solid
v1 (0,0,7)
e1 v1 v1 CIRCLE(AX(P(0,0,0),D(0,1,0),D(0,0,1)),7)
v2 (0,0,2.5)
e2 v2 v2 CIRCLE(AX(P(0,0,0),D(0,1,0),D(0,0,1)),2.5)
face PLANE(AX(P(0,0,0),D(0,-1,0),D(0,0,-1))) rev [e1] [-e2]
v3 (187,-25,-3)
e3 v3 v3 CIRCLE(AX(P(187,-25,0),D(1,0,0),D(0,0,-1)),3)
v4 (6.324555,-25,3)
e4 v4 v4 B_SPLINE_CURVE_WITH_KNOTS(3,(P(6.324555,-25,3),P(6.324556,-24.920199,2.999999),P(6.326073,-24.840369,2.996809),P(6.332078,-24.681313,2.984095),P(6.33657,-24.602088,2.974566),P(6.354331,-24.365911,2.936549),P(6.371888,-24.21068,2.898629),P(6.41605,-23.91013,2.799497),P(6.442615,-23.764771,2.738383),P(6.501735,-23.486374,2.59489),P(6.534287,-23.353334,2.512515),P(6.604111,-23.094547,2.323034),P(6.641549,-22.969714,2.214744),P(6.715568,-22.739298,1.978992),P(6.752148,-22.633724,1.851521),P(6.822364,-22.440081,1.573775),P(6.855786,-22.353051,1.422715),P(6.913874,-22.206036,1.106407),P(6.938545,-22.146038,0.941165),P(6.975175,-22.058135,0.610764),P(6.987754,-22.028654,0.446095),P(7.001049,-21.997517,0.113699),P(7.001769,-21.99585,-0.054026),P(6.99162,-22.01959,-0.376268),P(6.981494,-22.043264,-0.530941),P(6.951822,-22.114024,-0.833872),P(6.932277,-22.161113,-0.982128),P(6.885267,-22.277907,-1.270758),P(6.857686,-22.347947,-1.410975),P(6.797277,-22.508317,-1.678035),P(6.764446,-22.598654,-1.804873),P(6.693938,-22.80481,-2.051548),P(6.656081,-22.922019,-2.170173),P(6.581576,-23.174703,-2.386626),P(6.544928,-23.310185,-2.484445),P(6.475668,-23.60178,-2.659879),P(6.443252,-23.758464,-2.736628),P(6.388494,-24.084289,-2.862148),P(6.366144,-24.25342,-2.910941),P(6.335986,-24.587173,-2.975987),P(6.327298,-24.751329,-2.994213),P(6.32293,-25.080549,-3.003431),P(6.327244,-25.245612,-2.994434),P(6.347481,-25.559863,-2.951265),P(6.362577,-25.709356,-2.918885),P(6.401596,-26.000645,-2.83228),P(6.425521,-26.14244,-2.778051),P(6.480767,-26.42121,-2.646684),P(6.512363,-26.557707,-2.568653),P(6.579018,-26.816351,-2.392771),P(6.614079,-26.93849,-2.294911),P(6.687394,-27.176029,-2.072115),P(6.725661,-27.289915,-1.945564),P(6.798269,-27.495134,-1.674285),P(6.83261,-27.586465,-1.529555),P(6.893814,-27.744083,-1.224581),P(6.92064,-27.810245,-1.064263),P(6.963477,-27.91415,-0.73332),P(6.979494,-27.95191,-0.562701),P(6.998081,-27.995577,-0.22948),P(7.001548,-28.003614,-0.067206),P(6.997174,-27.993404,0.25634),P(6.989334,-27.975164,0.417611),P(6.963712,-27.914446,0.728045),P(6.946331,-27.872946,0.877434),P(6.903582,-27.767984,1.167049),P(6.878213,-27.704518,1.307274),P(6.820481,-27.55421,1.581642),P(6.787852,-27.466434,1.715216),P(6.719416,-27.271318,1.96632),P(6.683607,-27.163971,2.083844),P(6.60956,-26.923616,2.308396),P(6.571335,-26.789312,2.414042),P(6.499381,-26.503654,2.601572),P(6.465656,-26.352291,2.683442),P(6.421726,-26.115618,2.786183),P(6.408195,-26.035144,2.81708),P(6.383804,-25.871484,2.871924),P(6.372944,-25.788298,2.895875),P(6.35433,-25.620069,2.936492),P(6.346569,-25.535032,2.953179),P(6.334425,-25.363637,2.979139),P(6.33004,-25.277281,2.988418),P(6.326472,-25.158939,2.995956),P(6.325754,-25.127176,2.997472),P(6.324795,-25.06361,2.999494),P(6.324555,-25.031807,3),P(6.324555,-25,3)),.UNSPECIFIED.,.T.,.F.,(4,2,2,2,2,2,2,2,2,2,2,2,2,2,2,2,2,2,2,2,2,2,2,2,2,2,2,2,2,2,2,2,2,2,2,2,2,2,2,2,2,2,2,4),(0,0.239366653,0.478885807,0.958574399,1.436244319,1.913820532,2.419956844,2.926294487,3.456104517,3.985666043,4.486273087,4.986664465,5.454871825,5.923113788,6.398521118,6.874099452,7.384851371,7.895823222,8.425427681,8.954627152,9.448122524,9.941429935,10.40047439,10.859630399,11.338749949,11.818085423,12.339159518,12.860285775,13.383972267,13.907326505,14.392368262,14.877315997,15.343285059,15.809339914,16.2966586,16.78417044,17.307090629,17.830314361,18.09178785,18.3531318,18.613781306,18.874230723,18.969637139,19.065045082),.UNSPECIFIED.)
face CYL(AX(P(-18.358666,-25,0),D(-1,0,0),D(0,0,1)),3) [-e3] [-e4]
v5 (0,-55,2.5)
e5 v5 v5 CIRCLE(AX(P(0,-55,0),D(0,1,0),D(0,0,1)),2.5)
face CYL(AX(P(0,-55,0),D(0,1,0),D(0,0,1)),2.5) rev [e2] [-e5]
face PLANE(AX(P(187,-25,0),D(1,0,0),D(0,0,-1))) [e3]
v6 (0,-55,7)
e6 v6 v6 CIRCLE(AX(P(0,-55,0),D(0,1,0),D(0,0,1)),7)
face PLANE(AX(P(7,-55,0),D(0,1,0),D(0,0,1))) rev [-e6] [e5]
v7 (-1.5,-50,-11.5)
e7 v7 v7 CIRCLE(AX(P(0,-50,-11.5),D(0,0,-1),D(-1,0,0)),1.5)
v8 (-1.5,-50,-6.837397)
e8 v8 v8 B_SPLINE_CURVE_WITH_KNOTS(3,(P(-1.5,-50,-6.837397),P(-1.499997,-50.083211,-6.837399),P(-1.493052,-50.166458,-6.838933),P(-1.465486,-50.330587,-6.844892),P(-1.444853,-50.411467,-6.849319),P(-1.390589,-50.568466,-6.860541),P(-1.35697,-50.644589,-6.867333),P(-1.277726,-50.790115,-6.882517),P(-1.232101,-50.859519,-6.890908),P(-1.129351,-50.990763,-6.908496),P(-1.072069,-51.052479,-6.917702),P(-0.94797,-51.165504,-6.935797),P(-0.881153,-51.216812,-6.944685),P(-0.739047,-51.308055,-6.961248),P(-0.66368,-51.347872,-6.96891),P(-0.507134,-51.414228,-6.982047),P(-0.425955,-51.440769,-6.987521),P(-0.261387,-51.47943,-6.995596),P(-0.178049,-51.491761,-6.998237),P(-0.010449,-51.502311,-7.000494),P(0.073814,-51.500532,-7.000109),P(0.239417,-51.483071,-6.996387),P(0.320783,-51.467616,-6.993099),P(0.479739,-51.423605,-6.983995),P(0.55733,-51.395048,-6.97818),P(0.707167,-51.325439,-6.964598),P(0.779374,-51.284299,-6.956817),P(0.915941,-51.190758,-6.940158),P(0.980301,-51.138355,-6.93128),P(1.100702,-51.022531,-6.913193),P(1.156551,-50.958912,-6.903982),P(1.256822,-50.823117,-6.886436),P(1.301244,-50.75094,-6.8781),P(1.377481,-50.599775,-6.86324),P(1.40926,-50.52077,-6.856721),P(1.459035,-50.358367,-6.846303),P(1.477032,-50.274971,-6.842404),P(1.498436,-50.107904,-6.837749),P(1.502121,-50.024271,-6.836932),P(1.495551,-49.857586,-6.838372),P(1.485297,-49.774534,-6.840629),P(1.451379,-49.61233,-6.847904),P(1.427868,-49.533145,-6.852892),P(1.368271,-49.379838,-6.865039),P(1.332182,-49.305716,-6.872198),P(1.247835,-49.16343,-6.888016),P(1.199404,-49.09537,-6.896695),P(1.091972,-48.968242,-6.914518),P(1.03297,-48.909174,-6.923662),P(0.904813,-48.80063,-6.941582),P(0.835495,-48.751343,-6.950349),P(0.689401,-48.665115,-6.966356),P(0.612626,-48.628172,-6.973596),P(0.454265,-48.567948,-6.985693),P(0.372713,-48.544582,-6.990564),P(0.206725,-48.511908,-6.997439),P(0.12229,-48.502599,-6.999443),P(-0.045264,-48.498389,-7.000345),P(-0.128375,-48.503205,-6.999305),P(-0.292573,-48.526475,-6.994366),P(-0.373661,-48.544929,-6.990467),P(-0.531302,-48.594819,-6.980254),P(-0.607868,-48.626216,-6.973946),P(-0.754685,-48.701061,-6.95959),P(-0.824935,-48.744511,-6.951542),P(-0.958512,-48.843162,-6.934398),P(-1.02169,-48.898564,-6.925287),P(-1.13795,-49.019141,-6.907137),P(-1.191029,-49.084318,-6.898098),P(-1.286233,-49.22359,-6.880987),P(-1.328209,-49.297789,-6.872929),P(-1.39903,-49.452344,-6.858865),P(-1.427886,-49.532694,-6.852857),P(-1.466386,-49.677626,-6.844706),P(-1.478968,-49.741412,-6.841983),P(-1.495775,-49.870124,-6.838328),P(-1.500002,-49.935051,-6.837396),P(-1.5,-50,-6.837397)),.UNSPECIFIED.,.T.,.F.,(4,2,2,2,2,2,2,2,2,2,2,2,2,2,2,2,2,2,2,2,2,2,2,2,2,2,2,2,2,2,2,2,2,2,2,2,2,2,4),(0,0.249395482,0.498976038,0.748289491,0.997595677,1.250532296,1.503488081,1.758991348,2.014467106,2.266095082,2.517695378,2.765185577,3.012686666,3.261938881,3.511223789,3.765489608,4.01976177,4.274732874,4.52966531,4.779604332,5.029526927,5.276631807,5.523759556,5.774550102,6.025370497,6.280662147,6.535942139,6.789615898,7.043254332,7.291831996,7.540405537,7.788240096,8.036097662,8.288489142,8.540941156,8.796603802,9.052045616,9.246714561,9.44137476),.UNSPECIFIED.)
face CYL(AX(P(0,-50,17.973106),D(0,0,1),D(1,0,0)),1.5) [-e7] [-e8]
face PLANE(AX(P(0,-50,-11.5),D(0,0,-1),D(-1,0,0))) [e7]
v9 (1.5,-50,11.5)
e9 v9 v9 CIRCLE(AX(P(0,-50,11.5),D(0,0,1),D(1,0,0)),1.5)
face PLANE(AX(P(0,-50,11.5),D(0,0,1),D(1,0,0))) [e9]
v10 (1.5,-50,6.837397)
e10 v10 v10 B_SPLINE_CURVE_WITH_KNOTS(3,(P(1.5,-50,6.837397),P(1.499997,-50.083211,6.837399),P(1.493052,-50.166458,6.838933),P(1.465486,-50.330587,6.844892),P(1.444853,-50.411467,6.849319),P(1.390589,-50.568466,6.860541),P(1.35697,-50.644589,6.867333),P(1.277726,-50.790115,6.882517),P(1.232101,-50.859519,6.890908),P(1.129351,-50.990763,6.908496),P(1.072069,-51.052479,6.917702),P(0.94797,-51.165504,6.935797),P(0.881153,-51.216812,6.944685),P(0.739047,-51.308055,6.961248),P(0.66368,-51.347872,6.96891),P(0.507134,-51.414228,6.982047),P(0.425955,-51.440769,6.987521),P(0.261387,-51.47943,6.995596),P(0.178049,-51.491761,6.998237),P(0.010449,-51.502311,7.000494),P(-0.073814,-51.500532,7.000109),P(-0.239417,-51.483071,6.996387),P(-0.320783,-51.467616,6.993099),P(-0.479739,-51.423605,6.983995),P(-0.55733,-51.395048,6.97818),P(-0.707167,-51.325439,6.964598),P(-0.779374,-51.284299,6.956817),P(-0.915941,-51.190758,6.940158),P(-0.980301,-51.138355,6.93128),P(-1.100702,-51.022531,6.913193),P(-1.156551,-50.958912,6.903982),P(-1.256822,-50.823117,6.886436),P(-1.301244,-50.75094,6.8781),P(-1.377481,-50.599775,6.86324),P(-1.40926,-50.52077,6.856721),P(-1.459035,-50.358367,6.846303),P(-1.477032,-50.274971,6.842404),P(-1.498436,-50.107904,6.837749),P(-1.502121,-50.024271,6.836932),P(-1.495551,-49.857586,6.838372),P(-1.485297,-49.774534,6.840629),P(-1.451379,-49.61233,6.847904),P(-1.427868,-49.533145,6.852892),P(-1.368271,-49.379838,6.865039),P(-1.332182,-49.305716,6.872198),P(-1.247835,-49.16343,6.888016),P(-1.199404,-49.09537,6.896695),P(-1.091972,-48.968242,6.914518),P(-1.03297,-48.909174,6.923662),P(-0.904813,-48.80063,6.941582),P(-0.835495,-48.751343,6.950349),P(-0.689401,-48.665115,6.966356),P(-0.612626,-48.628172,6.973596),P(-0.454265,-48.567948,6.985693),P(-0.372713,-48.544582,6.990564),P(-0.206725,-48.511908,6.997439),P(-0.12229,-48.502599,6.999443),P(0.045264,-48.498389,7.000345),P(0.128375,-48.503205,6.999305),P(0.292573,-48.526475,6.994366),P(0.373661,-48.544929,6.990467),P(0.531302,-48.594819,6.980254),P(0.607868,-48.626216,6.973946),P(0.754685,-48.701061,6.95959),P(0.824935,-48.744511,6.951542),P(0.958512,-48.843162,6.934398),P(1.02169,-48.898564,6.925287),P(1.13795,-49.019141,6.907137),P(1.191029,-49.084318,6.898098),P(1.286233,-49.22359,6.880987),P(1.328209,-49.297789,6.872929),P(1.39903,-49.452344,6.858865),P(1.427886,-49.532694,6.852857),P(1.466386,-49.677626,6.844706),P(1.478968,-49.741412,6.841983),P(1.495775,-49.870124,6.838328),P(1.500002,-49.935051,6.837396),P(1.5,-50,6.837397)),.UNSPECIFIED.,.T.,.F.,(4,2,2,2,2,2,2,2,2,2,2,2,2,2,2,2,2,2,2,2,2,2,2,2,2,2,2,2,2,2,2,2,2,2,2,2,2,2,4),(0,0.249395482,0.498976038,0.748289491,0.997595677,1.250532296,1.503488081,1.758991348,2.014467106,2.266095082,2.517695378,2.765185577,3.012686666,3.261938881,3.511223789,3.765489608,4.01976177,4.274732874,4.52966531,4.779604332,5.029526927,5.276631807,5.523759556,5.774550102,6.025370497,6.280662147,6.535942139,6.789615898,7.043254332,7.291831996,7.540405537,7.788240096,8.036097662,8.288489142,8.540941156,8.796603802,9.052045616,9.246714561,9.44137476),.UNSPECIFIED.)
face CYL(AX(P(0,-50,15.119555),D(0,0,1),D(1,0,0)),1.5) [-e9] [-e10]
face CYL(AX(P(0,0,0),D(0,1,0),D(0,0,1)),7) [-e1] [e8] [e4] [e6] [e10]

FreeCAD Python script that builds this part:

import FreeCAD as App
import Part
import Sketcher
from FreeCAD import Vector
Q = App.Units.Quantity


def add_polygon(sketch, points):
    """Adds a closed chain of lines whose ends are joined by coincident constraints."""
    first, n = sketch.GeometryCount, len(points)
    for a, b in zip(points, points[1:] + points[:1]):
        sketch.addGeometry(Part.LineSegment(App.Vector(*a, 0), App.Vector(*b, 0)), False)
    for i in range(n):
        sketch.addConstraint(Sketcher.Constraint("Coincident", first + i, 2, first + (i + 1) % n, 1))

doc = App.newDocument("Part")
params = doc.addObject("Spreadsheet::Sheet", "Params")
for row, (alias, value) in enumerate([
    ("sketch1_width", "7 mm"),
    ("sketch1_height", "55 mm"),
    ("revolution_angle", "360 deg"),
    ("sketch2_height", "2 mm"),
    ("sketch2_width", "1.5 mm"),
    ("revolution2_angle", "360 deg"),
    ("sketch3_diameter", "5 mm"),
    ("sketch4_width", "70 mm"),
    ("sketch4_height", "3 mm"),
    ("revolution3_angle", "360 deg"),
    ("sketch5_height", "2 mm"),
    ("sketch5_width", "1.5 mm"),
    ("revolution4_angle", "360 deg"),
    ("sketch6_diameter", "3 mm"),
    ("pad1_length", "2.5 mm"),
    ("pad1_length2", "3 mm"),
    ("sketch7_diameter", "3 mm"),
    ("pad2_length", "2.5 mm"),
    ("pad2_length2", "3 mm"),
    ("sketch8_diameter", "6 mm"),
    ("pad3_length", "110 mm"),
    ("pad3_length2", "71.5 mm"),
], start=1):
    params.set(f"A{row}", alias)
    params.set(f"B{row}", "=" + value)
    params.setAlias(f"B{row}", alias)

body = doc.addObject("PartDesign::Body", "Body")

sketch1 = body.newObject("Sketcher::SketchObject", "Sketch")
sketch1.AttachmentSupport = (doc.getObject("XY_Plane"), [""])
sketch1.MapMode = "FlatFace"
add_polygon(sketch1, [(0, 0), (0, -55), (7, -55), (7, 0)])
sketch1.addConstraint([
    Sketcher.Constraint("Vertical", 0),
    Sketcher.Constraint("Horizontal", 1),
    Sketcher.Constraint("Vertical", 2),
    Sketcher.Constraint("Horizontal", 3),
    Sketcher.Constraint("Coincident", 3, 2, -1, 1),
    Sketcher.Constraint("DistanceX", 1, 1, 1, 2, Q("7 mm")),
    Sketcher.Constraint("DistanceY", 0, 2, 0, 1, Q("55 mm")),
])
sketch1.setExpression("Constraints[9]", "Params.sketch1_width")
sketch1.setExpression("Constraints[10]", "Params.sketch1_height")
revolution = body.newObject("PartDesign::Revolution", "Revolution")
revolution.Profile = sketch1
revolution.ReferenceAxis = (sketch1, ["V_Axis"])
revolution.setExpression("Angle", "Params.revolution_angle")

sketch2 = body.newObject("Sketcher::SketchObject", "Sketch001")
sketch2.AttachmentSupport = (doc.getObject("YZ_Plane"), [""])
sketch2.MapMode = "FlatFace"
add_polygon(sketch2, [(-48.5, -7), (-50, -7), (-50, -9), (-48.5, -9)])
sketch2.addGeometry(Part.LineSegment(Vector(-50, -7, 0), Vector(-50, -9, 0)), True)
sketch2.addConstraint([
    Sketcher.Constraint("Vertical", 1),
    Sketcher.Constraint("Horizontal", 2),
    Sketcher.Constraint("Vertical", 3),
    Sketcher.Constraint("Vertical", 4),
    Sketcher.Constraint("Coincident", 4, 1, 0, 2),
    Sketcher.Constraint("Horizontal", 2, 2, 4, 2),
    Sketcher.Constraint("DistanceY", 3, 1, 3, 2, Q("2 mm")),
    Sketcher.Constraint("DistanceX", 2, 1, 2, 2, Q("1.5 mm")),
    Sketcher.Constraint("DistanceX", 0, 2, -1, 1, Q("50 mm")),
    Sketcher.Constraint("DistanceY", 1, 2, -1, 1, Q("9 mm")),
    Sketcher.Constraint("DistanceY", 1, 2, 1, 1, Q("2.033032 mm")),
])
sketch2.setExpression("Constraints[10]", "Params.sketch2_height")
sketch2.setExpression("Constraints[11]", "Params.sketch2_width")
revolution2 = body.newObject("PartDesign::Revolution", "Revolution001")
revolution2.Profile = sketch2
revolution2.ReferenceAxis = (sketch2, ["Axis0"])
revolution2.setExpression("Angle", "Params.revolution2_angle")

sketch3 = body.newObject("Sketcher::SketchObject", "Sketch002")
sketch3.AttachmentSupport = (doc.getObject("XZ_Plane"), [""])
sketch3.MapMode = "FlatFace"
sketch3.addGeometry(Part.Circle(Vector(0, 0, 0), Vector(0, 0, 1), 2.5), False)
sketch3.addConstraint([
    Sketcher.Constraint("Coincident", 0, 3, -1, 1),
    Sketcher.Constraint("Diameter", 0, Q("5 mm")),
])
sketch3.setExpression("Constraints[1]", "Params.sketch3_diameter")
pocket1 = body.newObject("PartDesign::Pocket", "Pocket")
pocket1.Profile = sketch3
pocket1.Type = "ThroughAll"
pocket1.Reversed = True
body2 = doc.addObject("PartDesign::Body", "Body001")

sketch4 = body2.newObject("Sketcher::SketchObject", "Sketch003")
sketch4.AttachmentSupport = (doc.getObject("XY_Plane001"), [""])
sketch4.MapMode = "FlatFace"
add_polygon(sketch4, [(7, -22), (7, -25), (77, -25), (77, -22)])
sketch4.addGeometry(Part.LineSegment(Vector(7, -25, 0), Vector(77, -25, 0)), True)
sketch4.addConstraint([
    Sketcher.Constraint("Vertical", 0),
    Sketcher.Constraint("Horizontal", 1),
    Sketcher.Constraint("Vertical", 2),
    Sketcher.Constraint("Horizontal", 3),
    Sketcher.Constraint("Horizontal", 4),
    Sketcher.Constraint("Coincident", 4, 1, 0, 2),
    Sketcher.Constraint("Vertical", 2, 2, 4, 2),
    Sketcher.Constraint("DistanceX", 1, 1, 1, 2, Q("70 mm")),
    Sketcher.Constraint("DistanceY", 0, 2, 0, 1, Q("3 mm")),
    Sketcher.Constraint("DistanceX", -1, 1, 0, 2, Q("7 mm")),
    Sketcher.Constraint("DistanceY", 0, 2, -1, 1, Q("25 mm")),
])
sketch4.setExpression("Constraints[11]", "Params.sketch4_width")
sketch4.setExpression("Constraints[12]", "Params.sketch4_height")
revolution3 = body2.newObject("PartDesign::Revolution", "Revolution002")
revolution3.Profile = sketch4
revolution3.ReferenceAxis = (sketch4, ["Axis0"])
revolution3.setExpression("Angle", "Params.revolution3_angle")
body3 = doc.addObject("PartDesign::Body", "Body002")

sketch5 = body3.newObject("Sketcher::SketchObject", "Sketch004")
sketch5.AttachmentSupport = (doc.getObject("YZ_Plane002"), [""])
sketch5.MapMode = "FlatFace"
add_polygon(sketch5, [(-48.5, 9), (-50, 9), (-50, 7), (-48.5, 7)])
sketch5.addGeometry(Part.LineSegment(Vector(-50, 9, 0), Vector(-50, 7, 0)), True)
sketch5.addConstraint([
    Sketcher.Constraint("Horizontal", 0),
    Sketcher.Constraint("Vertical", 1),
    Sketcher.Constraint("Horizontal", 2),
    Sketcher.Constraint("Vertical", 3),
    Sketcher.Constraint("Vertical", 4),
    Sketcher.Constraint("Coincident", 4, 1, 0, 2),
    Sketcher.Constraint("Horizontal", 2, 2, 4, 2),
    Sketcher.Constraint("DistanceY", 1, 2, 1, 1, Q("2 mm")),
    Sketcher.Constraint("DistanceX", 0, 2, 0, 1, Q("1.5 mm")),
    Sketcher.Constraint("DistanceX", 0, 2, -1, 1, Q("50 mm")),
    Sketcher.Constraint("DistanceY", -1, 1, 0, 2, Q("9 mm")),
])
sketch5.setExpression("Constraints[11]", "Params.sketch5_height")
sketch5.setExpression("Constraints[12]", "Params.sketch5_width")
revolution4 = body3.newObject("PartDesign::Revolution", "Revolution003")
revolution4.Profile = sketch5
revolution4.ReferenceAxis = (sketch5, ["Axis0"])
revolution4.setExpression("Angle", "Params.revolution4_angle")
body.AllowCompound = True
doc.recompute()

boolean = body.newObject("PartDesign::Boolean", "Boolean")
boolean.Type = "Fuse"
boolean.addObjects([body3])

sketch6 = body.newObject("Sketcher::SketchObject", "Sketch005")
sketch6.AttachmentSupport = (doc.getObject("XY_Plane"), [""])
sketch6.MapMode = "FlatFace"
sketch6.AttachmentOffset = App.Placement(Vector(0, 0, 9), App.Rotation())
sketch6.addGeometry(Part.Circle(Vector(0, -50, 0), Vector(0, 0, 1), 1.5), False)
sketch6.addConstraint([
    Sketcher.Constraint("PointOnObject", 0, 3, -2),
    Sketcher.Constraint("Diameter", 0, Q("3 mm")),
    Sketcher.Constraint("DistanceY", 0, 3, -1, 1, Q("50 mm")),
])
sketch6.setExpression("Constraints[1]", "Params.sketch6_diameter")
pad1 = body.newObject("PartDesign::Pad", "Pad")
pad1.Profile = sketch6
pad1.Type = "TwoLengths"
pad1.setExpression("Length", "Params.pad1_length")
pad1.setExpression("Length2", "Params.pad1_length2")

sketch7 = body.newObject("Sketcher::SketchObject", "Sketch006")
sketch7.AttachmentSupport = (doc.getObject("XY_Plane"), [""])
sketch7.MapMode = "FlatFace"
sketch7.AttachmentOffset = App.Placement(Vector(0, 0, -9), App.Rotation())
sketch7.addGeometry(Part.Circle(Vector(0, -50, 0), Vector(0, 0, 1), 1.5), False)
sketch7.addConstraint([
    Sketcher.Constraint("PointOnObject", 0, 3, -2),
    Sketcher.Constraint("Diameter", 0, Q("3 mm")),
    Sketcher.Constraint("DistanceY", 0, 3, -1, 1, Q("50 mm")),
])
sketch7.setExpression("Constraints[1]", "Params.sketch7_diameter")
pad2 = body.newObject("PartDesign::Pad", "Pad001")
pad2.Profile = sketch7
pad2.Type = "TwoLengths"
pad2.setExpression("Length", "Params.pad2_length")
pad2.setExpression("Length2", "Params.pad2_length2")
pad2.Reversed = True
doc.recompute()

boolean2 = body.newObject("PartDesign::Boolean", "Boolean001")
boolean2.Type = "Fuse"
boolean2.addObjects([body2])

sketch8 = body.newObject("Sketcher::SketchObject", "Sketch007")
sketch8.AttachmentSupport = (doc.getObject("YZ_Plane"), [""])
sketch8.MapMode = "FlatFace"
sketch8.AttachmentOffset = App.Placement(Vector(0, 0, 77), App.Rotation())
sketch8.addGeometry(Part.Circle(Vector(-25, 0, 0), Vector(0, 0, 1), 3), False)
sketch8.addConstraint([
    Sketcher.Constraint("PointOnObject", 0, 3, -1),
    Sketcher.Constraint("Diameter", 0, Q("6 mm")),
    Sketcher.Constraint("DistanceX", 0, 3, -1, 1, Q("25 mm")),
])
sketch8.setExpression("Constraints[1]", "Params.sketch8_diameter")
pad3 = body.newObject("PartDesign::Pad", "Pad002")
pad3.Profile = sketch8
pad3.Type = "TwoLengths"
pad3.setExpression("Length", "Params.pad3_length")
pad3.setExpression("Length2", "Params.pad3_length2")

doc.recompute()
